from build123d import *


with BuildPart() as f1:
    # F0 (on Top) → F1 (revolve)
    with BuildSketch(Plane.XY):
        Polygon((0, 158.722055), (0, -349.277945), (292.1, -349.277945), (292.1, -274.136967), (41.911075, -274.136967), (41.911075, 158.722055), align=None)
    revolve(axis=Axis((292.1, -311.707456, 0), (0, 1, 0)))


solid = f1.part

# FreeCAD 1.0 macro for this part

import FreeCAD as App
import Part
import Sketcher

V = App.Vector
Q = App.Units.Quantity


def add_polygon(sketch, points):
    """Adds a closed chain of lines whose ends are joined by coincident constraints."""
    first, n = sketch.GeometryCount, len(points)
    for a, b in zip(points, points[1:] + points[:1]):
        sketch.addGeometry(Part.LineSegment(App.Vector(*a, 0), App.Vector(*b, 0)), False)
    for i in range(n):
        sketch.addConstraint(Sketcher.Constraint("Coincident", first + i, 2, first + (i + 1) % n, 1))

doc = App.newDocument("Part")
params = doc.addObject("Spreadsheet::Sheet", "Params")
for row, (alias, value) in enumerate([
    ("sketch1_height", "20 in"),
    ("sketch1_width", "11.5 in"),
    ("revolution_angle", "360 deg"),
], start=1):
    params.set(f"A{row}", alias)
    params.set(f"B{row}", "=" + value)
    params.setAlias(f"B{row}", alias)

body = doc.addObject("PartDesign::Body", "Body")

sketch1 = doc.addObject("Sketcher::SketchObject", "Sketch")
body.addObject(sketch1)
sketch1.AttachmentSupport = (doc.XY_Plane, [""])
sketch1.MapMode = "FlatFace"
add_polygon(sketch1, [(0, 158.722055), (0, -349.277945), (292.1, -349.277945), (292.1, -274.136967), (41.911075, -274.136967), (41.911075, 158.722055)])
sketch1.addGeometry(Part.LineSegment(V(292.1, -349.277945, 0), V(292.1, 158.722055, 0)), True)
sketch1.addConstraint(Sketcher.Constraint("Vertical", 0))
sketch1.addConstraint(Sketcher.Constraint("Horizontal", 1))
sketch1.addConstraint(Sketcher.Constraint("Vertical", 2))
sketch1.addConstraint(Sketcher.Constraint("Horizontal", 3))
sketch1.addConstraint(Sketcher.Constraint("Vertical", 4))
sketch1.addConstraint(Sketcher.Constraint("Horizontal", 5))
sketch1.addConstraint(Sketcher.Constraint("Vertical", 6))
sketch1.addConstraint(Sketcher.Constraint("Coincident", 6, 1, 1, 2))
sketch1.addConstraint(Sketcher.Constraint("PointOnObject", 0, 2, -2))
sketch1.addConstraint(Sketcher.Constraint("Horizontal", 5, 2, 6, 2))
sketch1.addConstraint(Sketcher.Constraint("DistanceY", 0, 2, 0, 1, Q("20 in")))
sketch1.addConstraint(Sketcher.Constraint("DistanceX", 1, 1, 1, 2, Q("11.5 in")))
sketch1.addConstraint(Sketcher.Constraint("DistanceY", 0, 2, -1, 1, Q("13.7511002 in")))
sketch1.addConstraint(Sketcher.Constraint("DistanceX", 3, 2, 3, 1, 250.188925))
sketch1.addConstraint(Sketcher.Constraint("DistanceY", 2, 1, 2, 2, 75.140978))
sketch1.setExpression("Constraints[16]", "Params.sketch1_height")
sketch1.setExpression("Constraints[17]", "Params.sketch1_width")
revolution = doc.addObject("PartDesign::Revolution", "Revolution")
body.addObject(revolution)
revolution.Profile = sketch1
revolution.ReferenceAxis = (sketch1, ["Axis0"])
revolution.setExpression("Angle", "Params.revolution_angle")

doc.recompute()
